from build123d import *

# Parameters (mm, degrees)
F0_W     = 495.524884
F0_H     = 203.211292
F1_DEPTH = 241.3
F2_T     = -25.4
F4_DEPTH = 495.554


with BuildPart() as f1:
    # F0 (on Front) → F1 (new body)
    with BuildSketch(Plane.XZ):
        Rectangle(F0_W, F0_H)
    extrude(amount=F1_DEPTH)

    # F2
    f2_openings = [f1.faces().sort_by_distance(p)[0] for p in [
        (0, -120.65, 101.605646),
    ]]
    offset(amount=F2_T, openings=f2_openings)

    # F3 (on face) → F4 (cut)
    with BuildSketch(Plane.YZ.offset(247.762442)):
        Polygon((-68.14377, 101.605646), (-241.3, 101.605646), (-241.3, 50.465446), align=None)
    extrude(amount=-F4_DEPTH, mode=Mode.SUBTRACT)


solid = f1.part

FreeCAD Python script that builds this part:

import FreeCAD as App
import Part
import Sketcher

V = App.Vector
Q = App.Units.Quantity


def faces_at(feature, points):
    """Names of the faces that lie closest to the given points."""
    faces = feature.Shape.Faces
    near = lambda p: min(range(len(faces)), key=lambda i: faces[i].distToShape(Part.Vertex(*p))[0])
    return sorted({f"Face{near(p) + 1}" for p in points})

doc = App.newDocument("Part")
body = doc.addObject("PartDesign::Body", "Body")

# Sketch on XZ plane
sketch1 = doc.addObject("Sketcher::SketchObject", "Sketch")
body.addObject(sketch1)
sketch1.AttachmentSupport = (doc.XZ_Plane, [""])
sketch1.MapMode = "FlatFace"
sketch1.addGeometry(Part.LineSegment(V(-248, 102, 0), V(-248, -102, 0)), False)
sketch1.addGeometry(Part.LineSegment(V(-248, -102, 0), V(248, -102, 0)), False)
sketch1.addGeometry(Part.LineSegment(V(248, -102, 0), V(248, 102, 0)), False)
sketch1.addGeometry(Part.LineSegment(V(248, 102, 0), V(-248, 102, 0)), False)
sketch1.addConstraint(Sketcher.Constraint("Coincident", 0, 2, 1, 1))
sketch1.addConstraint(Sketcher.Constraint("Coincident", 1, 2, 2, 1))
sketch1.addConstraint(Sketcher.Constraint("Coincident", 2, 2, 3, 1))
sketch1.addConstraint(Sketcher.Constraint("Coincident", 3, 2, 0, 1))
sketch1.addConstraint(Sketcher.Constraint("Vertical", 0))
sketch1.addConstraint(Sketcher.Constraint("Horizontal", 1))
sketch1.addConstraint(Sketcher.Constraint("Vertical", 2))
sketch1.addConstraint(Sketcher.Constraint("Horizontal", 3))
sketch1.addConstraint(Sketcher.Constraint("Symmetric", 0, 2, 2, 2, -1, 1))
sketch1.addConstraint(Sketcher.Constraint("DistanceY", 0, 2, 0, 1, Q("203.211292 mm")))
sketch1.addConstraint(Sketcher.Constraint("DistanceX", 1, 1, 1, 2, Q("495.524884 mm")))
pad1 = doc.addObject("PartDesign::Pad", "Pad")
body.addObject(pad1)
pad1.Profile = sketch1
pad1.Length = Q("9.5 in")
doc.recompute()

thickness = doc.addObject("PartDesign::Thickness", "Thickness")
body.addObject(thickness)
thickness.Base = (pad1, faces_at(pad1, [(0, -120.65, 101.606)]))
thickness.Value = Q("1 in")
thickness.Reversed = True
thickness.Join = "Arc"

# Sketch on YZ plane
sketch2 = doc.addObject("Sketcher::SketchObject", "Sketch001")
body.addObject(sketch2)
sketch2.AttachmentSupport = (doc.YZ_Plane, [""])
sketch2.MapMode = "FlatFace"
sketch2.AttachmentOffset = App.Placement(V(0, 0, 247.762442), App.Rotation())
sketch2.addGeometry(Part.LineSegment(V(-68, 102, 0), V(-241, 102, 0)), False)
sketch2.addGeometry(Part.LineSegment(V(-241, 102, 0), V(-241, 50, 0)), False)
sketch2.addGeometry(Part.LineSegment(V(-241, 50, 0), V(-68, 102, 0)), False)
sketch2.addConstraint(Sketcher.Constraint("Coincident", 0, 2, 1, 1))
sketch2.addConstraint(Sketcher.Constraint("Coincident", 1, 2, 2, 1))
sketch2.addConstraint(Sketcher.Constraint("Coincident", 2, 2, 0, 1))
sketch2.addConstraint(Sketcher.Constraint("Horizontal", 0))
sketch2.addConstraint(Sketcher.Constraint("Vertical", 1))
sketch2.addConstraint(Sketcher.Constraint("DistanceX", 0, 2, -1, 1, Q("9.5 in")))
sketch2.addConstraint(Sketcher.Constraint("DistanceY", 1, 2, 1, 1, Q("51.1402 mm")))
sketch2.addConstraint(Sketcher.Constraint("DistanceX", 0, 2, 0, 1, Q("173.15623 mm")))
sketch2.addConstraint(Sketcher.Constraint("DistanceY", -1, 1, 0, 2, Q("101.605646 mm")))
pocket1 = doc.addObject("PartDesign::Pocket", "Pocket")
body.addObject(pocket1)
pocket1.Profile = sketch2
pocket1.Length = Q("19.51 in")

doc.recompute()
